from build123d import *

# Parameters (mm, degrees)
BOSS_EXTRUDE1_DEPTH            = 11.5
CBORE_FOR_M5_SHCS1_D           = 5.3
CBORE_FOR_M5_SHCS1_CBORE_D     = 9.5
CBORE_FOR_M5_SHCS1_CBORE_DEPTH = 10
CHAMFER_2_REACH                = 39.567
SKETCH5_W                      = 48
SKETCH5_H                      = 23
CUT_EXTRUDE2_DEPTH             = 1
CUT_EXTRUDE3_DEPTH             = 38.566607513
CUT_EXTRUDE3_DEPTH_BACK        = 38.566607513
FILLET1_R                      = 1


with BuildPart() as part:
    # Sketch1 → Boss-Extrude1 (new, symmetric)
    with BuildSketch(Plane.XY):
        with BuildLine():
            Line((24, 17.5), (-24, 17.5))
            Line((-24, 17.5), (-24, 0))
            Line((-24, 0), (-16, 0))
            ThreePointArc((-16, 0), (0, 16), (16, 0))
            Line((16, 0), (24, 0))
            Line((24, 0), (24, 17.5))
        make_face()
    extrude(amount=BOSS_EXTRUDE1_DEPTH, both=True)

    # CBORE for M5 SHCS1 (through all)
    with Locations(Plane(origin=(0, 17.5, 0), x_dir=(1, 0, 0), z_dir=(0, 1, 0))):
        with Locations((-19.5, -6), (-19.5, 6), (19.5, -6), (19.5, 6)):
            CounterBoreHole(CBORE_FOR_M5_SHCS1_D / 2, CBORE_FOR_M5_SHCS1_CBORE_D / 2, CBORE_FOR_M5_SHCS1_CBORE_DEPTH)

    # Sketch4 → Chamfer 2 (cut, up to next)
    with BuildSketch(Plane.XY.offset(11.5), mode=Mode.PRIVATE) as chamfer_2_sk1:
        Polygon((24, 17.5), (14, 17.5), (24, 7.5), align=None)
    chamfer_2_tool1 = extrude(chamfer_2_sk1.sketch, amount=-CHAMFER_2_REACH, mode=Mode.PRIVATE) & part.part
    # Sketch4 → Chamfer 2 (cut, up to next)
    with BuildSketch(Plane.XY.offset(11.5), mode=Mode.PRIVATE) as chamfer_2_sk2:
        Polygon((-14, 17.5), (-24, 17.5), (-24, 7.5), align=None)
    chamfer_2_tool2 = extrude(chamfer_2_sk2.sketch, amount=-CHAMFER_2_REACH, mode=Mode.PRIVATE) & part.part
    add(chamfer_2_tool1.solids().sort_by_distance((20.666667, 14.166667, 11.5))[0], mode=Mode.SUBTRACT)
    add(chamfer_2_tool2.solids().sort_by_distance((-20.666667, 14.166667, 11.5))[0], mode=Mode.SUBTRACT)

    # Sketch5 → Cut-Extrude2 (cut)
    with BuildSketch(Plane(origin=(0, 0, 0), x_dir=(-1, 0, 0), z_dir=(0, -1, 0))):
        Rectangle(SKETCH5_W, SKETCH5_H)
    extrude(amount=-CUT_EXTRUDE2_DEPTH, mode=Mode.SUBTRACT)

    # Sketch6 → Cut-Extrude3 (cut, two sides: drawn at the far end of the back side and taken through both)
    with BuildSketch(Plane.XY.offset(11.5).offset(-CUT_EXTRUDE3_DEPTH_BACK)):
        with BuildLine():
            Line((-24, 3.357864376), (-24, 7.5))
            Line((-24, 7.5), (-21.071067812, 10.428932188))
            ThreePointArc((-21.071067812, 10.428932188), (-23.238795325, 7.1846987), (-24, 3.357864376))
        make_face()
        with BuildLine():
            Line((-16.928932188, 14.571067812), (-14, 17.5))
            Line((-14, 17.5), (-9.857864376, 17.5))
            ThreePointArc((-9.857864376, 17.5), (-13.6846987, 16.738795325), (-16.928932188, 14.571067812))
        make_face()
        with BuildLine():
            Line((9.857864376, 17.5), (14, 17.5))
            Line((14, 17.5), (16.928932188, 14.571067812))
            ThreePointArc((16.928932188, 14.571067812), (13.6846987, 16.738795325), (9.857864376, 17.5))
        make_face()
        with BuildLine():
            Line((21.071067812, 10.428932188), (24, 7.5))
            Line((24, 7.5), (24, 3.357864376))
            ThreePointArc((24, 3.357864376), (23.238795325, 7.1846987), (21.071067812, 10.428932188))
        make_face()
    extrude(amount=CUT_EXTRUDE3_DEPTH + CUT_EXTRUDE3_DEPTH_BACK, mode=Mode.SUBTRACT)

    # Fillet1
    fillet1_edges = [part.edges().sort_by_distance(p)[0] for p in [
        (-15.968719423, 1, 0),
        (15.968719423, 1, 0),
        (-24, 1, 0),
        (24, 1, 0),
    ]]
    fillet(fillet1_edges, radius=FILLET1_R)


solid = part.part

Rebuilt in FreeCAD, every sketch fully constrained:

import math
import FreeCAD as App
import Part
import Sketcher
from FreeCAD import Vector
Q = App.Units.Quantity


def edges_at(feature, points):
    """Names of the edges that pass closest to the given points."""
    edges = feature.Shape.Edges
    near = lambda p: min(range(len(edges)), key=lambda i: edges[i].distToShape(Part.Vertex(*p))[0])
    return sorted({f"Edge{near(p) + 1}" for p in points})

doc = App.newDocument("Part")
body = doc.addObject("PartDesign::Body", "Body")

# Sketch on XY plane
sketch1 = doc.addObject("Sketcher::SketchObject", "Sketch")
body.addObject(sketch1)
sketch1.AttachmentSupport = (doc.XY_Plane, [""])
sketch1.MapMode = "FlatFace"
sketch1.addGeometry(Part.LineSegment(Vector(24, 18, 0), Vector(-24, 18, 0)), False)
sketch1.addGeometry(Part.LineSegment(Vector(-24, 18, 0), Vector(-24, 0, 0)), False)
sketch1.addGeometry(Part.LineSegment(Vector(-24, 0, 0), Vector(-16, 0, 0)), False)
sketch1.addGeometry(Part.ArcOfCircle(Part.Circle(Vector(0, 0, 0), Vector(0, 0, 1), 16), math.radians(0), math.radians(180)), False)
sketch1.addGeometry(Part.LineSegment(Vector(16, 0, 0), Vector(24, 0, 0)), False)
sketch1.addGeometry(Part.LineSegment(Vector(24, 0, 0), Vector(24, 18, 0)), False)
sketch1.addConstraint(Sketcher.Constraint("Coincident", 0, 2, 1, 1))
sketch1.addConstraint(Sketcher.Constraint("Coincident", 1, 2, 2, 1))
sketch1.addConstraint(Sketcher.Constraint("Coincident", 2, 2, 3, 2))
sketch1.addConstraint(Sketcher.Constraint("Coincident", 3, 1, 4, 1))
sketch1.addConstraint(Sketcher.Constraint("Coincident", 4, 2, 5, 1))
sketch1.addConstraint(Sketcher.Constraint("Coincident", 5, 2, 0, 1))
sketch1.addConstraint(Sketcher.Constraint("Horizontal", 0))
sketch1.addConstraint(Sketcher.Constraint("Vertical", 1))
sketch1.addConstraint(Sketcher.Constraint("Horizontal", 2))
sketch1.addConstraint(Sketcher.Constraint("Horizontal", 4))
sketch1.addConstraint(Sketcher.Constraint("Vertical", 5))
sketch1.addConstraint(Sketcher.Constraint("Coincident", 3, 3, -1, 1))
sketch1.addConstraint(Sketcher.Constraint("Symmetric", 1, 2, 4, 2, -1, 1))
sketch1.addConstraint(Sketcher.Constraint("PointOnObject", 1, 2, -1))
sketch1.addConstraint(Sketcher.Constraint("Radius", 3, Q("16 mm")))
sketch1.addConstraint(Sketcher.Constraint("DistanceX", 0, 2, 0, 1, Q("48 mm")))
sketch1.addConstraint(Sketcher.Constraint("DistanceY", 1, 2, 1, 1, Q("17.5 mm")))
pad1 = doc.addObject("PartDesign::Pad", "Pad")
body.addObject(pad1)
pad1.Profile = sketch1
pad1.Length = 23
pad1.Midplane = True

# Sketch on XZ plane
sketch2 = doc.addObject("Sketcher::SketchObject", "Sketch001")
body.addObject(sketch2)
sketch2.AttachmentSupport = (doc.XZ_Plane, [""])
sketch2.MapMode = "FlatFace"
sketch2.AttachmentOffset = App.Placement(Vector(0, 0, -17.5), App.Rotation())
sketch2.addGeometry(Part.Circle(Vector(-19.5, 6, 0), Vector(0, 0, 1), 2.6), False)
sketch2.addGeometry(Part.Circle(Vector(-19.5, -6, 0), Vector(0, 0, 1), 2.6), False)
sketch2.addGeometry(Part.Circle(Vector(19.5, 6, 0), Vector(0, 0, 1), 2.6), False)
sketch2.addGeometry(Part.Circle(Vector(19.5, -6, 0), Vector(0, 0, 1), 2.6), False)
sketch2.addConstraint(Sketcher.Constraint("Equal", 0, 1))
sketch2.addConstraint(Sketcher.Constraint("Equal", 1, 2))
sketch2.addConstraint(Sketcher.Constraint("Equal", 2, 3))
sketch2.addConstraint(Sketcher.Constraint("Symmetric", 1, 3, 2, 3, -1, 1))
sketch2.addConstraint(Sketcher.Constraint("Symmetric", 0, 3, 3, 3, -1, 1))
sketch2.addConstraint(Sketcher.Constraint("Symmetric", 0, 3, 2, 3, -2))
sketch2.addConstraint(Sketcher.Constraint("Diameter", 0, Q("5.3 mm")))
sketch2.addConstraint(Sketcher.Constraint("DistanceY", -1, 1, 0, 3, Q("6 mm")))
sketch2.addConstraint(Sketcher.Constraint("DistanceX", 0, 3, 2, 3, Q("39 mm")))
doc.recompute()
hole = doc.addObject("PartDesign::Hole", "Hole")
body.addObject(hole)
hole.Profile = sketch2
hole.ThreadType = "None"
hole.Diameter = 5.3
hole.DepthType = "ThroughAll"
hole.HoleCutType = "Counterbore"
hole.HoleCutDiameter = 9.5
hole.HoleCutDepth = 10
hole.Reversed = True

# Sketch on XY plane
sketch3 = doc.addObject("Sketcher::SketchObject", "Sketch002")
body.addObject(sketch3)
sketch3.AttachmentSupport = (doc.XY_Plane, [""])
sketch3.MapMode = "FlatFace"
sketch3.AttachmentOffset = App.Placement(Vector(0, 0, 11.5), App.Rotation())
sketch3.addGeometry(Part.LineSegment(Vector(24, 18, 0), Vector(14, 18, 0)), False)
sketch3.addGeometry(Part.LineSegment(Vector(14, 18, 0), Vector(24, 8, 0)), False)
sketch3.addGeometry(Part.LineSegment(Vector(24, 8, 0), Vector(24, 18, 0)), False)
sketch3.addConstraint(Sketcher.Constraint("Coincident", 0, 2, 1, 1))
sketch3.addConstraint(Sketcher.Constraint("Coincident", 1, 2, 2, 1))
sketch3.addConstraint(Sketcher.Constraint("Coincident", 2, 2, 0, 1))
sketch3.addConstraint(Sketcher.Constraint("Horizontal", 0))
sketch3.addConstraint(Sketcher.Constraint("Vertical", 2))
sketch3.addConstraint(Sketcher.Constraint("Equal", 0, 2))
sketch3.addConstraint(Sketcher.Constraint("DistanceX", 0, 2, 0, 1, Q("10 mm")))
sketch3.addConstraint(Sketcher.Constraint("DistanceX", -1, 1, 0, 2, Q("14 mm")))
sketch3.addConstraint(Sketcher.Constraint("DistanceY", -1, 1, 0, 2, Q("17.5 mm")))
pocket1 = doc.addObject("PartDesign::Pocket", "Pocket")
body.addObject(pocket1)
pocket1.Profile = sketch3
pocket1.Type = "UpToFirst"

# Sketch on XY plane
sketch4 = doc.addObject("Sketcher::SketchObject", "Sketch003")
body.addObject(sketch4)
sketch4.AttachmentSupport = (doc.XY_Plane, [""])
sketch4.MapMode = "FlatFace"
sketch4.AttachmentOffset = App.Placement(Vector(0, 0, 11.5), App.Rotation())
sketch4.addGeometry(Part.LineSegment(Vector(-14, 18, 0), Vector(-24, 18, 0)), False)
sketch4.addGeometry(Part.LineSegment(Vector(-24, 18, 0), Vector(-24, 8, 0)), False)
sketch4.addGeometry(Part.LineSegment(Vector(-24, 8, 0), Vector(-14, 18, 0)), False)
sketch4.addConstraint(Sketcher.Constraint("Coincident", 0, 2, 1, 1))
sketch4.addConstraint(Sketcher.Constraint("Coincident", 1, 2, 2, 1))
sketch4.addConstraint(Sketcher.Constraint("Coincident", 2, 2, 0, 1))
sketch4.addConstraint(Sketcher.Constraint("Horizontal", 0))
sketch4.addConstraint(Sketcher.Constraint("Vertical", 1))
sketch4.addConstraint(Sketcher.Constraint("Equal", 0, 1))
sketch4.addConstraint(Sketcher.Constraint("DistanceX", 0, 2, 0, 1, Q("10 mm")))
sketch4.addConstraint(Sketcher.Constraint("DistanceX", 0, 2, -1, 1, Q("24 mm")))
sketch4.addConstraint(Sketcher.Constraint("DistanceY", -1, 1, 0, 2, Q("17.5 mm")))
pocket2 = doc.addObject("PartDesign::Pocket", "Pocket001")
body.addObject(pocket2)
pocket2.Profile = sketch4
pocket2.Length = 23

# Sketch on XZ plane
sketch5 = doc.addObject("Sketcher::SketchObject", "Sketch004")
body.addObject(sketch5)
sketch5.AttachmentSupport = (doc.XZ_Plane, [""])
sketch5.MapMode = "FlatFace"
sketch5.addGeometry(Part.LineSegment(Vector(24, -12, 0), Vector(24, 12, 0)), False)
sketch5.addGeometry(Part.LineSegment(Vector(24, 12, 0), Vector(-24, 12, 0)), False)
sketch5.addGeometry(Part.LineSegment(Vector(-24, 12, 0), Vector(-24, -12, 0)), False)
sketch5.addGeometry(Part.LineSegment(Vector(-24, -12, 0), Vector(24, -12, 0)), False)
sketch5.addConstraint(Sketcher.Constraint("Coincident", 0, 2, 1, 1))
sketch5.addConstraint(Sketcher.Constraint("Coincident", 1, 2, 2, 1))
sketch5.addConstraint(Sketcher.Constraint("Coincident", 2, 2, 3, 1))
sketch5.addConstraint(Sketcher.Constraint("Coincident", 3, 2, 0, 1))
sketch5.addConstraint(Sketcher.Constraint("Vertical", 0))
sketch5.addConstraint(Sketcher.Constraint("Horizontal", 1))
sketch5.addConstraint(Sketcher.Constraint("Vertical", 2))
sketch5.addConstraint(Sketcher.Constraint("Horizontal", 3))
sketch5.addConstraint(Sketcher.Constraint("Symmetric", 0, 2, 2, 2, -1, 1))
sketch5.addConstraint(Sketcher.Constraint("DistanceX", 1, 2, 1, 1, Q("48 mm")))
sketch5.addConstraint(Sketcher.Constraint("DistanceY", 0, 1, 0, 2, Q("23 mm")))
pocket3 = doc.addObject("PartDesign::Pocket", "Pocket002")
body.addObject(pocket3)
pocket3.Profile = sketch5
pocket3.Length = 1

# Sketch on XY plane
sketch6 = doc.addObject("Sketcher::SketchObject", "Sketch005")
body.addObject(sketch6)
sketch6.AttachmentSupport = (doc.XY_Plane, [""])
sketch6.MapMode = "FlatFace"
sketch6.AttachmentOffset = App.Placement(Vector(0, 0, 11.5), App.Rotation())
sketch6.addGeometry(Part.LineSegment(Vector(-24, 7.5, 0), Vector(-24, 3.4, 0)), False)
sketch6.addGeometry(Part.ArcOfCircle(Part.Circle(Vector(-14, 3.4, 0), Vector(0, 0, 1), 10), math.radians(135), math.radians(180)), False)
sketch6.addGeometry(Part.LineSegment(Vector(-21.1, 10.4, 0), Vector(-24, 7.5, 0)), False)
sketch6.addGeometry(Part.LineSegment(Vector(-14, 17.5, 0), Vector(-16.9, 14.6, 0)), False)
sketch6.addGeometry(Part.ArcOfCircle(Part.Circle(Vector(-9.9, 7.5, 0), Vector(0, 0, 1), 10), math.radians(90), math.radians(135)), False)
sketch6.addGeometry(Part.LineSegment(Vector(-9.9, 17.5, 0), Vector(-14, 17.5, 0)), False)
sketch6.addGeometry(Part.LineSegment(Vector(14, 17.5, 0), Vector(9.9, 17.5, 0)), False)
sketch6.addGeometry(Part.ArcOfCircle(Part.Circle(Vector(9.9, 7.5, 0), Vector(0, 0, 1), 10), math.radians(45), math.radians(90)), False)
sketch6.addGeometry(Part.LineSegment(Vector(16.9, 14.6, 0), Vector(14, 17.5, 0)), False)
sketch6.addGeometry(Part.LineSegment(Vector(24, 7.5, 0), Vector(21.1, 10.4, 0)), False)
sketch6.addGeometry(Part.ArcOfCircle(Part.Circle(Vector(14, 3.4, 0), Vector(0, 0, 1), 10), math.radians(0), math.radians(45)), False)
sketch6.addGeometry(Part.LineSegment(Vector(24, 3.4, 0), Vector(24, 7.5, 0)), False)
sketch6.addConstraint(Sketcher.Constraint("Tangent", 0, 2, 1, 2))
sketch6.addConstraint(Sketcher.Constraint("Tangent", 1, 1, 2, 1))
sketch6.addConstraint(Sketcher.Constraint("Coincident", 2, 2, 0, 1))
sketch6.addConstraint(Sketcher.Constraint("Tangent", 3, 2, 4, 2))
sketch6.addConstraint(Sketcher.Constraint("Tangent", 4, 1, 5, 1))
sketch6.addConstraint(Sketcher.Constraint("Coincident", 5, 2, 3, 1))
sketch6.addConstraint(Sketcher.Constraint("Tangent", 6, 2, 7, 2))
sketch6.addConstraint(Sketcher.Constraint("Tangent", 7, 1, 8, 1))
sketch6.addConstraint(Sketcher.Constraint("Coincident", 8, 2, 6, 1))
sketch6.addConstraint(Sketcher.Constraint("Tangent", 9, 2, 10, 2))
sketch6.addConstraint(Sketcher.Constraint("Tangent", 10, 1, 11, 1))
sketch6.addConstraint(Sketcher.Constraint("Coincident", 11, 2, 9, 1))
sketch6.addConstraint(Sketcher.Constraint("Vertical", 0))
sketch6.addConstraint(Sketcher.Constraint("Horizontal", 5))
sketch6.addConstraint(Sketcher.Constraint("Horizontal", 6))
sketch6.addConstraint(Sketcher.Constraint("Vertical", 11))
sketch6.addConstraint(Sketcher.Constraint("Equal", 1, 4))
sketch6.addConstraint(Sketcher.Constraint("Equal", 4, 7))
sketch6.addConstraint(Sketcher.Constraint("Equal", 7, 10))
sketch6.addConstraint(Sketcher.Constraint("Symmetric", 4, 3, 7, 3, -2))
sketch6.addConstraint(Sketcher.Constraint("Symmetric", 1, 3, 10, 3, -2))
sketch6.addConstraint(Sketcher.Constraint("Parallel", 2, 3))
sketch6.addConstraint(Sketcher.Constraint("Perpendicular", 3, 8))
sketch6.addConstraint(Sketcher.Constraint("Parallel", 8, 9))
sketch6.addConstraint(Sketcher.Constraint("Horizontal", 7, 3, 2, 2))
sketch6.addConstraint(Sketcher.Constraint("Horizontal", 3, 2, 7, 1))
sketch6.addConstraint(Sketcher.Constraint("Vertical", 1, 3, 5, 2))
sketch6.addConstraint(Sketcher.Constraint("Radius", 1, Q("10 mm")))
sketch6.addConstraint(Sketcher.Constraint("DistanceX", 1, 3, -1, 1, Q("14 mm")))
sketch6.addConstraint(Sketcher.Constraint("DistanceY", -1, 1, 4, 3, Q("7.5 mm")))
pocket4 = doc.addObject("PartDesign::Pocket", "Pocket003")
body.addObject(pocket4)
pocket4.Profile = sketch6
pocket4.Type = "ThroughAll"
pocket4.Midplane = True
doc.recompute()

fillet = doc.addObject("PartDesign::Fillet", "Fillet")
body.addObject(fillet)
fillet.Base = (pocket4, edges_at(pocket4, [
    (-15.969, 1, 0),
    (15.969, 1, 0),
    (-24, 1, 0),
    (24, 1, 0),
]))
fillet.Radius = 1

doc.recompute()
